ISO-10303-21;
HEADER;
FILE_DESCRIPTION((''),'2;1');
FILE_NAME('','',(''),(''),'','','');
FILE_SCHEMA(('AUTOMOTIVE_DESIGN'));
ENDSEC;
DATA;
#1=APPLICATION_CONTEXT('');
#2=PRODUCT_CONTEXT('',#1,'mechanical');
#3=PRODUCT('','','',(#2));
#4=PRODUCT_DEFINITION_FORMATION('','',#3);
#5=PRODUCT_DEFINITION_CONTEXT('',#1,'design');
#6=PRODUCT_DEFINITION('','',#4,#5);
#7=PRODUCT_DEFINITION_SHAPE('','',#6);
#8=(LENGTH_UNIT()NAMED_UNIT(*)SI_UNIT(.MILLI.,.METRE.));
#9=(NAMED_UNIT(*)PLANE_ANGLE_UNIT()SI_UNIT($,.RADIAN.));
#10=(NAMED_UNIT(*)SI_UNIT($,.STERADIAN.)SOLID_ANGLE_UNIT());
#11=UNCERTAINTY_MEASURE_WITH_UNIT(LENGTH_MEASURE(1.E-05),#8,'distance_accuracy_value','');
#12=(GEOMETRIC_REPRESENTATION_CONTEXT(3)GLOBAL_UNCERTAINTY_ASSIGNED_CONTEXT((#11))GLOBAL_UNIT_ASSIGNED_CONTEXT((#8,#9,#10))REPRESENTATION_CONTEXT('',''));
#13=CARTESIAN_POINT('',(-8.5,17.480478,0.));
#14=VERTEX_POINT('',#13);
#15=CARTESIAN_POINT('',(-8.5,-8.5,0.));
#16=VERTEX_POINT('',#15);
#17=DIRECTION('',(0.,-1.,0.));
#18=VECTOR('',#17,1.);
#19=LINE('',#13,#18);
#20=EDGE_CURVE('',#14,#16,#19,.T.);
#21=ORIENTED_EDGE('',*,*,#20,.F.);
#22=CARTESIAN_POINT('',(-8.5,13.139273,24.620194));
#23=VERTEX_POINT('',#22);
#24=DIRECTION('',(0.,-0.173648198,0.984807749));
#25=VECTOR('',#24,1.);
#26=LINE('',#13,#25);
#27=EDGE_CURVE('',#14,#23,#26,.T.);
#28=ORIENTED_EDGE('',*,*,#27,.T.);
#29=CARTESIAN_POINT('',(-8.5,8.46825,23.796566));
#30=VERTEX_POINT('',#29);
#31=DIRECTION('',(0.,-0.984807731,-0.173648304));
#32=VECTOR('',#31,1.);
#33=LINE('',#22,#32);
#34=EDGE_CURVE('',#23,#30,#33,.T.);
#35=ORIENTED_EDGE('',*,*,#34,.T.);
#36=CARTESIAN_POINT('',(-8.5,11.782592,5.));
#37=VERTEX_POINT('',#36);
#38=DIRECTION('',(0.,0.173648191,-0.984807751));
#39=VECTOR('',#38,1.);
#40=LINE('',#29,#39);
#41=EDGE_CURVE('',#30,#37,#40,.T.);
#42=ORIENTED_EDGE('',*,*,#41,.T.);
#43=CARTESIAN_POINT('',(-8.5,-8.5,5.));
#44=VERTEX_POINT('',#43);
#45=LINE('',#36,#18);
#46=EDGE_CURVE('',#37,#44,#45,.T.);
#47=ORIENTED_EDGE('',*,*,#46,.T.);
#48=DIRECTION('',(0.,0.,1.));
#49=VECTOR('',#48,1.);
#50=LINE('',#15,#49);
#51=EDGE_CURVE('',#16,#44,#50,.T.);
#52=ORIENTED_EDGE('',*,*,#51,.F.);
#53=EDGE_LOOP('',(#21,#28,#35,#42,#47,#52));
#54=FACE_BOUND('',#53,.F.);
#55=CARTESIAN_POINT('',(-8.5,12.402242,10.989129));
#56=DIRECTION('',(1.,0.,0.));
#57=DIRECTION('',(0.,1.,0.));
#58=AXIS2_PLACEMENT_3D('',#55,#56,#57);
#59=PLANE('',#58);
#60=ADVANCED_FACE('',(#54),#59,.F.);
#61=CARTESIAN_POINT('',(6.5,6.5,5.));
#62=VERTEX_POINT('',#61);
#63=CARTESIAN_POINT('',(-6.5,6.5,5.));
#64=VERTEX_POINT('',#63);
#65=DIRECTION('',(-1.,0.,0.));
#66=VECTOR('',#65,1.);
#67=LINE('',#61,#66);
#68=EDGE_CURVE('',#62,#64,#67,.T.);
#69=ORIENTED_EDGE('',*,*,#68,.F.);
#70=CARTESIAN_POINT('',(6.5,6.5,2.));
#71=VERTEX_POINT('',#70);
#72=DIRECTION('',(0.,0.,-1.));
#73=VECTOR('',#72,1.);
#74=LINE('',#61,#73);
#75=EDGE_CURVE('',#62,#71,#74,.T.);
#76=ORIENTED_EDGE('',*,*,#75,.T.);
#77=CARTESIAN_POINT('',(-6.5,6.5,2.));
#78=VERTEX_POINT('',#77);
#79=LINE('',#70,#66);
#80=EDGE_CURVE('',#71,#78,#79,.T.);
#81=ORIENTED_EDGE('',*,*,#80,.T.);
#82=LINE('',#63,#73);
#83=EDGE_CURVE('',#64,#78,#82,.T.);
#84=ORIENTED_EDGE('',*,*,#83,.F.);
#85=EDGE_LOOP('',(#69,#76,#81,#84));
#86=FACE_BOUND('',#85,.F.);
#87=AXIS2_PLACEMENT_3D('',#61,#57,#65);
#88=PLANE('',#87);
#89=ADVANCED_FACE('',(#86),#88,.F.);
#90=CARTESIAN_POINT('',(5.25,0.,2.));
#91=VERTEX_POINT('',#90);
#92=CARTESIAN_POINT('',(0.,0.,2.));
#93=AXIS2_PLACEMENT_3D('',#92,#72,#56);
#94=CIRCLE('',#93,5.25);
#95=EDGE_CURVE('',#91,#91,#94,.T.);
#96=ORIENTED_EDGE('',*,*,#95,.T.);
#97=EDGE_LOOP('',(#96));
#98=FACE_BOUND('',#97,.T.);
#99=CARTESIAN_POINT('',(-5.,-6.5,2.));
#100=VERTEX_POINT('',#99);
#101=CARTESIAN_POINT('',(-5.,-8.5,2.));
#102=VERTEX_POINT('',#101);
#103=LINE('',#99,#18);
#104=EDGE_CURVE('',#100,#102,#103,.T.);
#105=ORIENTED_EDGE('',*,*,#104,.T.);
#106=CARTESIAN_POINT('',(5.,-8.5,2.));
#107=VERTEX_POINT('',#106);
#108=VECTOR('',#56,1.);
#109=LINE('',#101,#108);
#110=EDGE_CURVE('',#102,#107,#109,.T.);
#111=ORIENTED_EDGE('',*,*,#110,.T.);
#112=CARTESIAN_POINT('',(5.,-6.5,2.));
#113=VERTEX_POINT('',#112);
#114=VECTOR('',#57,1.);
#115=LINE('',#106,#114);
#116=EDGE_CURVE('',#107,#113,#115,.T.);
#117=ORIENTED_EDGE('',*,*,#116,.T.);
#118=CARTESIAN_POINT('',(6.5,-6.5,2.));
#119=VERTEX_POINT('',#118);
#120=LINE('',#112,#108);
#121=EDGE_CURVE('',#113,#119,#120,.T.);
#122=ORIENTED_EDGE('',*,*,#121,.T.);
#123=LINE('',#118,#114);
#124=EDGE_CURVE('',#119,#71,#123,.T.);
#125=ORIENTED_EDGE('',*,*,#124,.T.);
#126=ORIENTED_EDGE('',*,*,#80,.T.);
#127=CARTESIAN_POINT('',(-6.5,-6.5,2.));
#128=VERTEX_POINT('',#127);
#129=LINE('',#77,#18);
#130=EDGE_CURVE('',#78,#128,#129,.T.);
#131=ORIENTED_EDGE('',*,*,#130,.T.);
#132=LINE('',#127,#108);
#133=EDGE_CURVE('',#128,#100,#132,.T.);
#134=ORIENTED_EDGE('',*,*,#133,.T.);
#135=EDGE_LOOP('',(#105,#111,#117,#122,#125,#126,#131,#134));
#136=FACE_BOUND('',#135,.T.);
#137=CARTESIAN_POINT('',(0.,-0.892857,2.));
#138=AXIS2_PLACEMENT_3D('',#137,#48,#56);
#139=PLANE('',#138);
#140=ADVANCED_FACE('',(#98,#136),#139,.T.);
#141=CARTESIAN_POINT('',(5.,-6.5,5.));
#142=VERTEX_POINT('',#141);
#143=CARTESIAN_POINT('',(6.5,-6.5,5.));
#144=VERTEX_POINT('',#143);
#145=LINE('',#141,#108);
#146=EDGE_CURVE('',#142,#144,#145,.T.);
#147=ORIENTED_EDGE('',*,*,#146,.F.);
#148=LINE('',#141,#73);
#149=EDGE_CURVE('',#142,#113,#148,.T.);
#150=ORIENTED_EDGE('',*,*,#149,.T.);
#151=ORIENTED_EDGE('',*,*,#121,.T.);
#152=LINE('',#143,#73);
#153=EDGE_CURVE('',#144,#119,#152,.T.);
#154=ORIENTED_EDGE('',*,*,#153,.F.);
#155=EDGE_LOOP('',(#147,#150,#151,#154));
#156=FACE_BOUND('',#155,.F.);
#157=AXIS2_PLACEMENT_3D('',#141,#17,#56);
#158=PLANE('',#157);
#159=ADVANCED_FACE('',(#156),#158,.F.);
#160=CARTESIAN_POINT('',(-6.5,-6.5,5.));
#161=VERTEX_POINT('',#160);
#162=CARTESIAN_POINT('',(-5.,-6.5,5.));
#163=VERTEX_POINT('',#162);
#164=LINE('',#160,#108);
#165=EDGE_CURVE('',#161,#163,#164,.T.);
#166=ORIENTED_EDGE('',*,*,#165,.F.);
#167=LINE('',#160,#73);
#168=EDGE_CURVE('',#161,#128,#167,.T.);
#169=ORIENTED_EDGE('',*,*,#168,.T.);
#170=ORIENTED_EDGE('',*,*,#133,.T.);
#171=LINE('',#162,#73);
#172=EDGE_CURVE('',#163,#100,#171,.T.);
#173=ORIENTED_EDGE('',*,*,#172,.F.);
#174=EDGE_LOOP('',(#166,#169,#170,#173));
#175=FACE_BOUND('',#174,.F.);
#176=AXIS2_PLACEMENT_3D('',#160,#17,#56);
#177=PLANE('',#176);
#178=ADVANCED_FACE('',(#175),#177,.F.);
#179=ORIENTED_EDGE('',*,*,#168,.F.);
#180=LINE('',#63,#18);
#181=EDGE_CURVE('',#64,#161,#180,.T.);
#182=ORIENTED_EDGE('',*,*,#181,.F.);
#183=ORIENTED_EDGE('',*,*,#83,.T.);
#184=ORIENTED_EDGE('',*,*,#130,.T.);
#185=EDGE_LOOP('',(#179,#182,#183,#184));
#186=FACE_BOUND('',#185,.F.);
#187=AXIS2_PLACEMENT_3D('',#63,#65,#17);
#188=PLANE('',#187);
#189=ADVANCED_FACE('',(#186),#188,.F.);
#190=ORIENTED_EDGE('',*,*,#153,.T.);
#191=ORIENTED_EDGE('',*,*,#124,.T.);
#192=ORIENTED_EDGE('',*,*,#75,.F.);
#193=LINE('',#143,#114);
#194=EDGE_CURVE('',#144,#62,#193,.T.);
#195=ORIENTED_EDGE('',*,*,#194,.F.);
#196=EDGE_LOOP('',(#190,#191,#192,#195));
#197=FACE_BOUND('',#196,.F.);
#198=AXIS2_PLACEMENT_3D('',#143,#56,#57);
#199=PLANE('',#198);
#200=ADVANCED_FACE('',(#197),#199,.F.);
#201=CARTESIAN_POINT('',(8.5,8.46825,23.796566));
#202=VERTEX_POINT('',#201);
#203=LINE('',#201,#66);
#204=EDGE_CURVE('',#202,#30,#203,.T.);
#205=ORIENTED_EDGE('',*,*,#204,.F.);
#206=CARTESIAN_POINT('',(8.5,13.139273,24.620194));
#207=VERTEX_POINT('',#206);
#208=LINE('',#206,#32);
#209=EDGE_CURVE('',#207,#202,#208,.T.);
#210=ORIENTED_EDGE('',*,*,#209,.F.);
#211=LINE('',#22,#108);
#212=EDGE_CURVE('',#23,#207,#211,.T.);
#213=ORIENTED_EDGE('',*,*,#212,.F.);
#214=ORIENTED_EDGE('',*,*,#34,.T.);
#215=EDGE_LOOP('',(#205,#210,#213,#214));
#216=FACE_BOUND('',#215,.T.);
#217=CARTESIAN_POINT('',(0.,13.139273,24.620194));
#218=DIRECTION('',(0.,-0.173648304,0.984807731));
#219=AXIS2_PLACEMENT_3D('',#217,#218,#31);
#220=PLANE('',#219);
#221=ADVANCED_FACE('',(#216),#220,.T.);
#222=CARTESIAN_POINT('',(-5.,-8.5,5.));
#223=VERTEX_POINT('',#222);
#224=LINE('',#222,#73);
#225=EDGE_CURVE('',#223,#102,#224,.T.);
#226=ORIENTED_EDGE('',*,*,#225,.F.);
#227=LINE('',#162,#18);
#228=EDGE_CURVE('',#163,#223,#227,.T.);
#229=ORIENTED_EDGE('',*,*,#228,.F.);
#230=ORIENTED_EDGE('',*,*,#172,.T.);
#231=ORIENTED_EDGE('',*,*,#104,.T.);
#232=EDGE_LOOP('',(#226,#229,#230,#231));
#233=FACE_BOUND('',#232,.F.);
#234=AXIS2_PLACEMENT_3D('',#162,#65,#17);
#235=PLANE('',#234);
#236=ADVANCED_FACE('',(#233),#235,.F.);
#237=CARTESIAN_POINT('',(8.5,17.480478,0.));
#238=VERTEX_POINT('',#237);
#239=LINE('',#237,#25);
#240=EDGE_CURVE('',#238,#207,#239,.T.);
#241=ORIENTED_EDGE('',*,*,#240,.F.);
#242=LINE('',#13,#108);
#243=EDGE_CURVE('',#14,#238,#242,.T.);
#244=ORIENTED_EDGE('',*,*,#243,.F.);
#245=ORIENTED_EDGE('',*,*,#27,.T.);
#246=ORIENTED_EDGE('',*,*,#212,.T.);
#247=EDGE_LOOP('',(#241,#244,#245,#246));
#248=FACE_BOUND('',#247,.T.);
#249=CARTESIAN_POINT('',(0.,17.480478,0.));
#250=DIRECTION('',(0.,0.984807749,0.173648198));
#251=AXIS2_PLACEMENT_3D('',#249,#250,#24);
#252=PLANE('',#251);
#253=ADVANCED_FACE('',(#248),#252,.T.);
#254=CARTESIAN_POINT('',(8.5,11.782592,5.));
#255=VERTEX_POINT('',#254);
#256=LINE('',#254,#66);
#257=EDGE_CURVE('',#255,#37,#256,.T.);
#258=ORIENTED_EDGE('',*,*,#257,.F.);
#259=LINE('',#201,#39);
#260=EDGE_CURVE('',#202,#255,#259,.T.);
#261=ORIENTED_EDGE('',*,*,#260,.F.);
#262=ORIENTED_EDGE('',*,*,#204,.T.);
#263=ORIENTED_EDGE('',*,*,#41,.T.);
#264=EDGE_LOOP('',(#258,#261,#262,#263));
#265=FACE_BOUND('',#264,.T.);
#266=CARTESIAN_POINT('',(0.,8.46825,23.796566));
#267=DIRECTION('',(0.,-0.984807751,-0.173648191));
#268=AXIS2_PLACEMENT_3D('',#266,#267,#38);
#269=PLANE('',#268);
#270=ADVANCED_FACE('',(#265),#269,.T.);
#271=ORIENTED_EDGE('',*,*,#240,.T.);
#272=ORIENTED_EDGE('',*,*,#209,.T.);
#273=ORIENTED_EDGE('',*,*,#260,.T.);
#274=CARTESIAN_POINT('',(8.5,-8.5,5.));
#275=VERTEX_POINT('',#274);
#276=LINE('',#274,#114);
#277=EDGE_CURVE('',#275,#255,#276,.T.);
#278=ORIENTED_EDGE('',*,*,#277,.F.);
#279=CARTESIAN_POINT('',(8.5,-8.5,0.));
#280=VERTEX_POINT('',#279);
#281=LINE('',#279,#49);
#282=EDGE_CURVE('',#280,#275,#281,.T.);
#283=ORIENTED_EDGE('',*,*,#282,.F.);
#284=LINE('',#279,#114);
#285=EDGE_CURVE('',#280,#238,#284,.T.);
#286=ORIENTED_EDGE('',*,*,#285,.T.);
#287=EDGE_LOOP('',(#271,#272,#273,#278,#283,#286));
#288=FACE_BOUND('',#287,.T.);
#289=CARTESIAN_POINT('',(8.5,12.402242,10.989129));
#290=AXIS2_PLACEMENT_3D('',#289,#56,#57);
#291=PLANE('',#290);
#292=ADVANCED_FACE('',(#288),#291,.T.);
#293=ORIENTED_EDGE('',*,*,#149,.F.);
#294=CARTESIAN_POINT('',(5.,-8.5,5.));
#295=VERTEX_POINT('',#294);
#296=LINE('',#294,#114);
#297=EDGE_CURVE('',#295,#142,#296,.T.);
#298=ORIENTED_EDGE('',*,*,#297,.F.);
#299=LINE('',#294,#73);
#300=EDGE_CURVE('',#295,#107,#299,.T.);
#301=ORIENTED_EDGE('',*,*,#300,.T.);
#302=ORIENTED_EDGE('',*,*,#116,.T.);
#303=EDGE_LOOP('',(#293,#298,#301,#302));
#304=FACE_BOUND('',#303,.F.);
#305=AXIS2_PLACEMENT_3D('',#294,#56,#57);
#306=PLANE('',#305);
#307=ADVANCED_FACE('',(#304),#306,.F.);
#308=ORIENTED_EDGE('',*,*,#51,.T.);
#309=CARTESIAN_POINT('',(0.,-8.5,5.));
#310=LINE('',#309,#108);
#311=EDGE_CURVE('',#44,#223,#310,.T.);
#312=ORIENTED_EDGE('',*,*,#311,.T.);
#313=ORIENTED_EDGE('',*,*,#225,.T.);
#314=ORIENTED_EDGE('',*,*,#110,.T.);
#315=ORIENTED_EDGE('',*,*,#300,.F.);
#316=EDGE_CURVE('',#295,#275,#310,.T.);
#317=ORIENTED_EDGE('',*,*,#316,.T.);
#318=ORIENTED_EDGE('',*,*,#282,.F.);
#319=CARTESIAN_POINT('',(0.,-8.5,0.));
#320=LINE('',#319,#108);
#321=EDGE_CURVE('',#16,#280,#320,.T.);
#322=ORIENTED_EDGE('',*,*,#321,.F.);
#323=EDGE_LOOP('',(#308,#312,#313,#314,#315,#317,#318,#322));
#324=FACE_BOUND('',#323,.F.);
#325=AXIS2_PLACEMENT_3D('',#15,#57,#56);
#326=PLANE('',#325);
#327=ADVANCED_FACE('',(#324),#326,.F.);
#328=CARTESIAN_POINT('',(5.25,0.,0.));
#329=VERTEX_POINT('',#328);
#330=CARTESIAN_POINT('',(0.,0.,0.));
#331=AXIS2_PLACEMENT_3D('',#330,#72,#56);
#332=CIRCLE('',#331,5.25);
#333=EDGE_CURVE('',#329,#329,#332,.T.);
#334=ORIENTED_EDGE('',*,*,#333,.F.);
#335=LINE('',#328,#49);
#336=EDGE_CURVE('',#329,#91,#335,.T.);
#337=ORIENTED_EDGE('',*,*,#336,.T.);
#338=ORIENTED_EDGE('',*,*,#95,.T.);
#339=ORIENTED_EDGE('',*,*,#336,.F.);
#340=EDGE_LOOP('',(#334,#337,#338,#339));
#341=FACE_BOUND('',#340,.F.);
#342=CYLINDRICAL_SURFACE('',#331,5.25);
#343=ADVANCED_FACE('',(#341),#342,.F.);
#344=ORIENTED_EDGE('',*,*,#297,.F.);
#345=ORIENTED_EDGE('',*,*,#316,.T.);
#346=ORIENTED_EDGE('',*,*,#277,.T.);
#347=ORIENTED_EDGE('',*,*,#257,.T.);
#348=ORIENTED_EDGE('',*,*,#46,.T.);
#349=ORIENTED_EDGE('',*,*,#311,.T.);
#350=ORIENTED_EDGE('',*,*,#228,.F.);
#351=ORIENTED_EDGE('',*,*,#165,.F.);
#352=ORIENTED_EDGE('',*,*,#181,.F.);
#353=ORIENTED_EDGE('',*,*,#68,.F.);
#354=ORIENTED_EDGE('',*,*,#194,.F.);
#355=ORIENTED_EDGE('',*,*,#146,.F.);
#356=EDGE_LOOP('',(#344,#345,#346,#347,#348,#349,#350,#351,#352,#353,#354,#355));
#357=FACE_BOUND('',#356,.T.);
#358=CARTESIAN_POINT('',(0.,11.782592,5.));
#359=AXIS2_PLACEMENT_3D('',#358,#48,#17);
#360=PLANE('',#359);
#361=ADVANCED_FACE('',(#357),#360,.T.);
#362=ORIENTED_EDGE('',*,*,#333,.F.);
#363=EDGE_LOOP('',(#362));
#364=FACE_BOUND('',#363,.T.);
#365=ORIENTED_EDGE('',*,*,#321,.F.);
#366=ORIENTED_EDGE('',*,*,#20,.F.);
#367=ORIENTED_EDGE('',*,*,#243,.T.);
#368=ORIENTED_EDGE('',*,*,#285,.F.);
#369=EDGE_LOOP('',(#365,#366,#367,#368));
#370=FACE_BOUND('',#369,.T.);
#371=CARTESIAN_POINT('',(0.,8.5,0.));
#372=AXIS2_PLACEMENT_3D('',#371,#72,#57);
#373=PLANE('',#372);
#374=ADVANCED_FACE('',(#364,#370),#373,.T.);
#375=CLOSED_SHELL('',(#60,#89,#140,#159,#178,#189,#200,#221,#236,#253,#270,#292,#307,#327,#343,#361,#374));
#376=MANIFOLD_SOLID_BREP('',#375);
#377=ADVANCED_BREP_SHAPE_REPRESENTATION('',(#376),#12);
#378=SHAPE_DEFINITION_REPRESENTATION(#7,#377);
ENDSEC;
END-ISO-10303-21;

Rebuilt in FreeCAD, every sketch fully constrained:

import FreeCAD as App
import Part
import Sketcher

V = App.Vector
Q = App.Units.Quantity


def add_polygon(sketch, points):
    """Adds a closed chain of lines whose ends are joined by coincident constraints."""
    first, n = sketch.GeometryCount, len(points)
    for a, b in zip(points, points[1:] + points[:1]):
        sketch.addGeometry(Part.LineSegment(App.Vector(*a, 0), App.Vector(*b, 0)), False)
    for i in range(n):
        sketch.addConstraint(Sketcher.Constraint("Coincident", first + i, 2, first + (i + 1) % n, 1))

doc = App.newDocument("Part")
body = doc.addObject("PartDesign::Body", "Body")

sketch1 = body.newObject("Sketcher::SketchObject", "Sketch")
sketch1.AttachmentSupport = (doc.getObject("XY_Plane"), [""])
sketch1.MapMode = "FlatFace"
add_polygon(sketch1, [(-8, 8), (-8, -8), (8, -8), (8, 8)])
sketch1.addConstraint([
    Sketcher.Constraint("Vertical", 0),
    Sketcher.Constraint("Horizontal", 1),
    Sketcher.Constraint("Vertical", 2),
    Sketcher.Constraint("Horizontal", 3),
    Sketcher.Constraint("Symmetric", 0, 2, 2, 2, -1, 1),
    Sketcher.Constraint("Equal", 3, 0),
    Sketcher.Constraint("DistanceX", 1, 1, 1, 2, Q("17 mm")),
])
pad1 = body.newObject("PartDesign::Pad", "Pad")
pad1.Profile = sketch1
pad1.Length = 5

sketch2 = body.newObject("Sketcher::SketchObject", "Sketch001")
sketch2.AttachmentSupport = (doc.getObject("XY_Plane"), [""])
sketch2.MapMode = "FlatFace"
sketch2.AttachmentOffset = App.Placement(V(0, 0, 5), App.Rotation())
add_polygon(sketch2, [(6.5, 6.5), (-6.5, 6.5), (-6.5, -6.5), (-5, -6.5), (-5, -8.5), (5, -8.5), (5, -6.5), (6.5, -6.5)])
sketch2.addConstraint([
    Sketcher.Constraint("Horizontal", 0),
    Sketcher.Constraint("Vertical", 1),
    Sketcher.Constraint("Horizontal", 2),
    Sketcher.Constraint("Vertical", 3),
    Sketcher.Constraint("Horizontal", 4),
    Sketcher.Constraint("Vertical", 5),
    Sketcher.Constraint("Horizontal", 6),
    Sketcher.Constraint("Vertical", 7),
    Sketcher.Constraint("Symmetric", 0, 2, 6, 2, -1, 1),
    Sketcher.Constraint("Symmetric", 2, 2, 5, 2, -2),
    Sketcher.Constraint("Equal", 0, 1),
    Sketcher.Constraint("DistanceX", 0, 2, 0, 1, Q("13 mm")),
    Sketcher.Constraint("DistanceX", 4, 1, 4, 2, Q("10 mm")),
    Sketcher.Constraint("DistanceY", 3, 2, 3, 1, Q("2 mm")),
])
pocket1 = body.newObject("PartDesign::Pocket", "Pocket")
pocket1.Profile = sketch2
pocket1.Length = 3

sketch3 = body.newObject("Sketcher::SketchObject", "Sketch002")
sketch3.AttachmentSupport = (doc.getObject("XY_Plane"), [""])
sketch3.MapMode = "FlatFace"
sketch3.addGeometry(Part.Circle(V(0, 0, 0), V(0, 0, 1), 5), False)
sketch3.addConstraint([
    Sketcher.Constraint("Coincident", 0, 3, -1, 1),
    Sketcher.Constraint("Diameter", 0, Q("10.5 mm")),
])
pocket2 = body.newObject("PartDesign::Pocket", "Pocket001")
pocket2.Profile = sketch3
pocket2.Length = 25
pocket2.Reversed = True

sketch4 = body.newObject("Sketcher::SketchObject", "Sketch003")
sketch4.AttachmentSupport = (doc.getObject("YZ_Plane"), [""])
sketch4.MapMode = "FlatFace"
add_polygon(sketch4, [(8.5, 5), (8.5, 0), (17.5, 0), (13.1, 24.6), (8.5, 23.8), (11.8, 5)])
sketch4.addConstraint([
    Sketcher.Constraint("Vertical", 0),
    Sketcher.Constraint("Horizontal", 1),
    Sketcher.Constraint("Horizontal", 5),
    Sketcher.Constraint("PointOnObject", 0, 2, -1),
    Sketcher.Constraint("Perpendicular", 2, 3),
    Sketcher.Constraint("Perpendicular", 3, 4),
    Sketcher.Constraint("DistanceY", 0, 2, 0, 1, Q("5 mm")),
    Sketcher.Constraint("Angle", 2, Q("100.000001 deg")),
    Sketcher.Constraint("Distance", 2, Q("25 mm")),
    Sketcher.Constraint("DistanceX", -1, 1, 0, 2, Q("8.5 mm")),
    Sketcher.Constraint("DistanceX", 1, 1, 1, 2, Q("8.980478 mm")),
    Sketcher.Constraint("DistanceX", 5, 2, 5, 1, Q("3.282592 mm")),
])
pad2 = body.newObject("PartDesign::Pad", "Pad001")
pad2.Profile = sketch4
pad2.Length = 17
pad2.Midplane = True

doc.recompute()
